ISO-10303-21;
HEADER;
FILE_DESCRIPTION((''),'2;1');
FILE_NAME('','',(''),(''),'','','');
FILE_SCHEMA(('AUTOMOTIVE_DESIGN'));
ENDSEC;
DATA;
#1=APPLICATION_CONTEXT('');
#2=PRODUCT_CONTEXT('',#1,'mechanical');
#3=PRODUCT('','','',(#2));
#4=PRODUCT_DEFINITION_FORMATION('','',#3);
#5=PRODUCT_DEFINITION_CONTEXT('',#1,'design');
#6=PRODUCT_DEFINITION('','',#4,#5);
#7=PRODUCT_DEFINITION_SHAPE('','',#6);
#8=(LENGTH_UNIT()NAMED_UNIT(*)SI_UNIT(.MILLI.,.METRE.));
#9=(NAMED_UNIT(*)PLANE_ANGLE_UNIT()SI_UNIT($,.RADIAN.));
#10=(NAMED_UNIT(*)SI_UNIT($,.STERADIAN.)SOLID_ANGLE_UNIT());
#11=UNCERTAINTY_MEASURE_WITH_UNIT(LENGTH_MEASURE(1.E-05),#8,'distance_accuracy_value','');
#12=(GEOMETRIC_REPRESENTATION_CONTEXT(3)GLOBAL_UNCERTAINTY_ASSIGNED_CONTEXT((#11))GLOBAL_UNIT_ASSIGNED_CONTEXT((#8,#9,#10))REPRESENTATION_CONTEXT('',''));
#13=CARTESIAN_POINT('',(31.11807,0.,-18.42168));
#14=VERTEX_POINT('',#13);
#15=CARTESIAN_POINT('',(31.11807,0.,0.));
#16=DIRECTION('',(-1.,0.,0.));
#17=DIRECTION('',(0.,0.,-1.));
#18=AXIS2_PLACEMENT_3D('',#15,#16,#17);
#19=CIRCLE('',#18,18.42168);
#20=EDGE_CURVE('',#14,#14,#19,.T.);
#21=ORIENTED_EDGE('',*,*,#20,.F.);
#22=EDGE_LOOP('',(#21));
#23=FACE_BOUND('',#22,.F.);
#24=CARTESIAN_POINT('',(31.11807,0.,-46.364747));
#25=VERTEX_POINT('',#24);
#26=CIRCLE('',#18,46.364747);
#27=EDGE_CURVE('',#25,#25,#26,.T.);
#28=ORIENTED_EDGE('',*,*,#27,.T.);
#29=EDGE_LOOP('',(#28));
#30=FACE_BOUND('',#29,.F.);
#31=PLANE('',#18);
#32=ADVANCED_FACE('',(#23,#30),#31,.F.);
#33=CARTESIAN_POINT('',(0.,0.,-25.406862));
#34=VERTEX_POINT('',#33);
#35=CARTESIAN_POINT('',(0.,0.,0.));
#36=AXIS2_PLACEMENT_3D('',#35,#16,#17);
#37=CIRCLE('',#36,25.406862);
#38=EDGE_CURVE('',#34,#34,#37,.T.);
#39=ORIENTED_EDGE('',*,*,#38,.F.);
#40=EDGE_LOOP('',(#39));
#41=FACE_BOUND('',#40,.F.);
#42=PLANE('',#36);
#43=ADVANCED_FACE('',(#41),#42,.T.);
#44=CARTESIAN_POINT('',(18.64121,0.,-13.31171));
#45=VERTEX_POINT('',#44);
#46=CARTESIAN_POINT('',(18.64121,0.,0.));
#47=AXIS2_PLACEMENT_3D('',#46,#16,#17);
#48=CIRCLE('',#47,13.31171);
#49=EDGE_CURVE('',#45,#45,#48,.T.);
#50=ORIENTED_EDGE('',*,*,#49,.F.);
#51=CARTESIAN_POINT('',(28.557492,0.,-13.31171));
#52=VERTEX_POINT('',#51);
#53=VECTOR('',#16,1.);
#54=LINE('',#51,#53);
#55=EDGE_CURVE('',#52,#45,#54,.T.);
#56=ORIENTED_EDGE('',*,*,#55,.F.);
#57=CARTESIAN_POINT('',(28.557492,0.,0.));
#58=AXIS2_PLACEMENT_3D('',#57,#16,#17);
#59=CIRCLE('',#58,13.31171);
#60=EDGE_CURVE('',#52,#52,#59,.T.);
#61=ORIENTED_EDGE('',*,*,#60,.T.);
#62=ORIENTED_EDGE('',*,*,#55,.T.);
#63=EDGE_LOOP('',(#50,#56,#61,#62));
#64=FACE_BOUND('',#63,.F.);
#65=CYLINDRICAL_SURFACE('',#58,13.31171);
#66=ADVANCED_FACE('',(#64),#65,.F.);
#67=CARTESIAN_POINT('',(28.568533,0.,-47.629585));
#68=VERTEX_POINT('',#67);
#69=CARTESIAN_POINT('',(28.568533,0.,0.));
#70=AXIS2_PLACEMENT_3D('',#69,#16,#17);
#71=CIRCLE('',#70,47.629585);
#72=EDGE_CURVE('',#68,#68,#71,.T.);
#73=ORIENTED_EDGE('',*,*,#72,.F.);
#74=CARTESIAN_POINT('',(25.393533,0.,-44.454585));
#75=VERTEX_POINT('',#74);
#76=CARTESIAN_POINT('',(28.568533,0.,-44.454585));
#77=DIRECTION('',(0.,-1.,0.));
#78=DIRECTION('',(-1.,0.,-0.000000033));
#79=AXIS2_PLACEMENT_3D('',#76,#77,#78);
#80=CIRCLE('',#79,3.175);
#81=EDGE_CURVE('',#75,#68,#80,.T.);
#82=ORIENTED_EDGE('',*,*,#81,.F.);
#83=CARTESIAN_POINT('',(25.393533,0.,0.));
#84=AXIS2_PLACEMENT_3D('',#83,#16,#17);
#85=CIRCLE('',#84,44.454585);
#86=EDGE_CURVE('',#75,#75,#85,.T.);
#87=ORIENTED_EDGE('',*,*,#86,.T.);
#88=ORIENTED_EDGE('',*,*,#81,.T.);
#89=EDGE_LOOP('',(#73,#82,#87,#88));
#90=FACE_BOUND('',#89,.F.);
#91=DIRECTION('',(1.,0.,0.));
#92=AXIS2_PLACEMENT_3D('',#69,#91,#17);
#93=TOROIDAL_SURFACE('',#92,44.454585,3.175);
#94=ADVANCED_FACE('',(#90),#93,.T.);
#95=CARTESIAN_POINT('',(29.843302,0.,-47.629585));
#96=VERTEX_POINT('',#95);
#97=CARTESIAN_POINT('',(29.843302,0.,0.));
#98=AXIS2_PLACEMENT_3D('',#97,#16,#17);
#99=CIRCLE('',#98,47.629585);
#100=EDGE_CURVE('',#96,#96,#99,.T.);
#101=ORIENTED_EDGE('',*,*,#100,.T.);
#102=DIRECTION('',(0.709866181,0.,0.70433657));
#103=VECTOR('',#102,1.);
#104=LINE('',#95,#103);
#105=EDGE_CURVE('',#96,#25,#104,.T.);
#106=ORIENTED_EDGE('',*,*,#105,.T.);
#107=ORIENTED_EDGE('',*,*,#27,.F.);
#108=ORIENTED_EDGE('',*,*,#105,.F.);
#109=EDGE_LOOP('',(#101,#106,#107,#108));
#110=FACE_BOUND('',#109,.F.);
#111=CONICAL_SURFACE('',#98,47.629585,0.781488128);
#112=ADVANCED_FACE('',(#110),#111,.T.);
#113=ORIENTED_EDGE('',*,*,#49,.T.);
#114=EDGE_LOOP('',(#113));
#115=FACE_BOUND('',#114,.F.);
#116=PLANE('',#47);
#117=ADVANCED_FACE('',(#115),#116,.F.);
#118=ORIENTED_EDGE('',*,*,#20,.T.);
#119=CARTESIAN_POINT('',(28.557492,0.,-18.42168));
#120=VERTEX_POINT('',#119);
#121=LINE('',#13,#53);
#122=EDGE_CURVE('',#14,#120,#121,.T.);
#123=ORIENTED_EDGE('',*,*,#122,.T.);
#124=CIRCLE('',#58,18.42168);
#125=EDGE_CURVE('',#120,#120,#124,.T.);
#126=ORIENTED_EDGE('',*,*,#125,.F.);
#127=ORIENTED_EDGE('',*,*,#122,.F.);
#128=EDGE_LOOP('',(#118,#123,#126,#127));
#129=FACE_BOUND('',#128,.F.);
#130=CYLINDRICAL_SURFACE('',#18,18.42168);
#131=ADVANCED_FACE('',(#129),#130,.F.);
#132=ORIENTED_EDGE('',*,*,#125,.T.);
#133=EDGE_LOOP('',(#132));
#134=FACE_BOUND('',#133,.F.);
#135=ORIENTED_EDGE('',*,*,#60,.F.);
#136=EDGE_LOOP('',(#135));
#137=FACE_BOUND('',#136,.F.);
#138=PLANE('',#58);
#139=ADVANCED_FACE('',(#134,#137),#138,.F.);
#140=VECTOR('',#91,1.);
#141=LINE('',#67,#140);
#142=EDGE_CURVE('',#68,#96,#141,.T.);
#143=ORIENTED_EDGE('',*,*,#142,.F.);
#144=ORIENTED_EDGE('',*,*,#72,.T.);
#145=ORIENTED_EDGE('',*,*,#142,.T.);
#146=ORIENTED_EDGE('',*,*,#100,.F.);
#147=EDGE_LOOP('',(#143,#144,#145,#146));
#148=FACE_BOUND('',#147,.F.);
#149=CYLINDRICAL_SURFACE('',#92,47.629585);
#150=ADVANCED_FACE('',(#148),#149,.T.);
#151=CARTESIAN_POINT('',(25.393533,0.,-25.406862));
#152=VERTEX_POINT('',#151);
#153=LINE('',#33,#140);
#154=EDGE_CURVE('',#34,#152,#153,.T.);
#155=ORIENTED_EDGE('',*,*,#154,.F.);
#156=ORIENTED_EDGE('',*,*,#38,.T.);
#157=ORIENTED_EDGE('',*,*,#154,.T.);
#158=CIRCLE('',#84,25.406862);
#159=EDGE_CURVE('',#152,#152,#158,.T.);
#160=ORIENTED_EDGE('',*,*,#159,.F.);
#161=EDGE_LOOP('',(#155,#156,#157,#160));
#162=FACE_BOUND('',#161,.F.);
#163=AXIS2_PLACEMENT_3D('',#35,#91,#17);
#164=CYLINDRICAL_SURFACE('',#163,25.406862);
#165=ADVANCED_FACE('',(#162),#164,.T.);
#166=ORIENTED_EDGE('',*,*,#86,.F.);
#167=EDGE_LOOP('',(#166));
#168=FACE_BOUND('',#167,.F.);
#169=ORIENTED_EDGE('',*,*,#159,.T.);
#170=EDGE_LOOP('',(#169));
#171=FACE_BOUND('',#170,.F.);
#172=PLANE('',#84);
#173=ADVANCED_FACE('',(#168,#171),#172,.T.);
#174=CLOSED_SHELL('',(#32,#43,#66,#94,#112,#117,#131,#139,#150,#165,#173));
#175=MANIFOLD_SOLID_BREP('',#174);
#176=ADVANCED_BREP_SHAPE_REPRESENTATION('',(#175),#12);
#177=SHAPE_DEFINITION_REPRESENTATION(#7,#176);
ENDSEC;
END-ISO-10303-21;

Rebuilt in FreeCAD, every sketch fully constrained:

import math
import FreeCAD as App
import Part
import Sketcher
from FreeCAD import Vector
Q = App.Units.Quantity

doc = App.newDocument("Part")
body = doc.addObject("PartDesign::Body", "Body")

# Sketch on XZ plane
sketch1 = body.newObject("Sketcher::SketchObject", "Sketch")
sketch1.AttachmentSupport = (doc.getObject("XZ_Plane"), [""])
sketch1.MapMode = "FlatFace"
sketch1.addGeometry([
    Part.LineSegment(Vector(18.6, 0, 0), Vector(0, 0, 0)),  # 0
    Part.LineSegment(Vector(0, 0, 0), Vector(0, -25.4, 0)),  # 1
    Part.LineSegment(Vector(0, -25.4, 0), Vector(25.4, -25.4, 0)),  # 2
    Part.LineSegment(Vector(25.4, -25.4, 0), Vector(25.4, -44.5, 0)),  # 3
    Part.ArcOfCircle(Part.Circle(Vector(28.6, -44.5, 0), Vector(0, 0, 1), 3.2), math.radians(-180), math.radians(-90)),  # 4
    Part.LineSegment(Vector(28.6, -47.6, 0), Vector(29.8, -47.6, 0)),  # 5
    Part.LineSegment(Vector(29.8, -47.6, 0), Vector(31.1, -46.4, 0)),  # 6
    Part.LineSegment(Vector(31.1, -46.4, 0), Vector(31.1, -18.4, 0)),  # 7
    Part.LineSegment(Vector(31.1, -18.4, 0), Vector(28.6, -18.4, 0)),  # 8
    Part.LineSegment(Vector(28.6, -18.4, 0), Vector(28.6, -13.3, 0)),  # 9
    Part.LineSegment(Vector(28.6, -13.3, 0), Vector(18.6, -13.3, 0)),  # 10
    Part.LineSegment(Vector(18.6, -13.3, 0), Vector(18.6, 0, 0)),  # 11
], False)
sketch1.addConstraint([
    Sketcher.Constraint("Coincident", 0, 2, 1, 1),
    Sketcher.Constraint("Coincident", 1, 2, 2, 1),
    Sketcher.Constraint("Coincident", 2, 2, 3, 1),
    Sketcher.Constraint("Tangent", 3, 2, 4, 1),
    Sketcher.Constraint("Tangent", 4, 2, 5, 1),
    Sketcher.Constraint("Coincident", 5, 2, 6, 1),
    Sketcher.Constraint("Coincident", 6, 2, 7, 1),
    Sketcher.Constraint("Coincident", 7, 2, 8, 1),
    Sketcher.Constraint("Coincident", 8, 2, 9, 1),
    Sketcher.Constraint("Coincident", 9, 2, 10, 1),
    Sketcher.Constraint("Coincident", 10, 2, 11, 1),
    Sketcher.Constraint("Coincident", 11, 2, 0, 1),
    Sketcher.Constraint("Horizontal", 0),
    Sketcher.Constraint("Vertical", 1),
    Sketcher.Constraint("Horizontal", 2),
    Sketcher.Constraint("Vertical", 3),
    Sketcher.Constraint("Horizontal", 5),
    Sketcher.Constraint("Vertical", 7),
    Sketcher.Constraint("Horizontal", 8),
    Sketcher.Constraint("Vertical", 9),
    Sketcher.Constraint("Horizontal", 10),
    Sketcher.Constraint("Vertical", 11),
    Sketcher.Constraint("Coincident", 0, 2, -1, 1),
    Sketcher.Constraint("Radius", 4, Q("0.125 in")),
    Sketcher.Constraint("DistanceX", 0, 2, 0, 1, Q("18.64121 mm")),
    Sketcher.Constraint("DistanceX", 5, 1, 5, 2, Q("1.274769 mm")),
    Sketcher.Constraint("DistanceX", 10, 2, 10, 1, Q("9.916282 mm")),
    Sketcher.Constraint("DistanceY", 1, 2, 1, 1, Q("25.406862 mm")),
    Sketcher.Constraint("DistanceY", 9, 1, 9, 2, Q("5.10997 mm")),
    Sketcher.Constraint("DistanceY", 11, 1, 11, 2, Q("13.31171 mm")),
    Sketcher.Constraint("DistanceX", 2, 1, 2, 2, Q("25.393533 mm")),
    Sketcher.Constraint("DistanceX", 8, 2, 8, 1, Q("2.560578 mm")),
    Sketcher.Constraint("DistanceY", 3, 2, 3, 1, Q("19.047723 mm")),
    Sketcher.Constraint("DistanceY", 7, 1, 7, 2, Q("27.943067 mm")),
])
revolution = body.newObject("PartDesign::Revolution", "Revolution")
revolution.Profile = sketch1
revolution.ReferenceAxis = (sketch1, ["H_Axis"])
revolution.Angle = 360

doc.recompute()
